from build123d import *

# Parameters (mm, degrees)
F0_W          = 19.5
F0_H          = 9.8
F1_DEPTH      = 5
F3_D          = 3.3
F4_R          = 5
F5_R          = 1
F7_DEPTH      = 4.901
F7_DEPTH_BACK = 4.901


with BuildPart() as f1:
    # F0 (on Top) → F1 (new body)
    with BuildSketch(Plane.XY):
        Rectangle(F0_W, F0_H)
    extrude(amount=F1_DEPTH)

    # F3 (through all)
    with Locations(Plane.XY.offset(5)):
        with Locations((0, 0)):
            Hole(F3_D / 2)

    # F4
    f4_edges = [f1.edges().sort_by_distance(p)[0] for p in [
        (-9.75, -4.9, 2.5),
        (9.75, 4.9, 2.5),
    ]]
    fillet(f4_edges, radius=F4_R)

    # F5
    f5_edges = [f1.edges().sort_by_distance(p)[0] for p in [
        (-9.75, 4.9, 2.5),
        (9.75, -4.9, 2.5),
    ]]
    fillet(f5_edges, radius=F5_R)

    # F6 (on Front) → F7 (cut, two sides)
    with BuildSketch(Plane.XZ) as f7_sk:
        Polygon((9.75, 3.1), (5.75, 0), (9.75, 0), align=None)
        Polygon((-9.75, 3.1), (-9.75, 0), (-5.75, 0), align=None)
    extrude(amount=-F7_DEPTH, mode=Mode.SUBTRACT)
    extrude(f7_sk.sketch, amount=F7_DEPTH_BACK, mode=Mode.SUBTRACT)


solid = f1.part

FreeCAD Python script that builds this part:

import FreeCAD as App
import Part
import Sketcher

V = App.Vector


def edges_at(feature, points):
    """Names of the edges that pass closest to the given points."""
    edges = feature.Shape.Edges
    near = lambda p: min(range(len(edges)), key=lambda i: edges[i].distToShape(Part.Vertex(*p))[0])
    return sorted({f"Edge{near(p) + 1}" for p in points})

doc = App.newDocument("Part")
body = doc.addObject("PartDesign::Body", "Body")

# Sketch on XY plane
sketch1 = doc.addObject("Sketcher::SketchObject", "Sketch")
body.addObject(sketch1)
sketch1.AttachmentSupport = (doc.XY_Plane, [""])
sketch1.MapMode = "FlatFace"
sketch1.addGeometry([
    Part.LineSegment(V(-9.75, 4.9, 0), V(-9.75, -4.9, 0)),
    Part.LineSegment(V(-9.75, -4.9, 0), V(9.75, -4.9, 0)),
    Part.LineSegment(V(9.75, -4.9, 0), V(9.75, 4.9, 0)),
    Part.LineSegment(V(9.75, 4.9, 0), V(-9.75, 4.9, 0)),
], False)
sketch1.addConstraint([
    Sketcher.Constraint("Coincident", 0, 2, 1, 1),
    Sketcher.Constraint("Coincident", 1, 2, 2, 1),
    Sketcher.Constraint("Coincident", 2, 2, 3, 1),
    Sketcher.Constraint("Coincident", 3, 2, 0, 1),
    Sketcher.Constraint("Vertical", 0),
    Sketcher.Constraint("Horizontal", 1),
    Sketcher.Constraint("Vertical", 2),
    Sketcher.Constraint("Horizontal", 3),
    Sketcher.Constraint("Symmetric", 0, 2, 2, 2, -1, 1),
    Sketcher.Constraint("DistanceX", 1, 1, 1, 2, 19.5),
    Sketcher.Constraint("DistanceY", 0, 2, 0, 1, 9.8),
])
pad1 = doc.addObject("PartDesign::Pad", "Pad")
body.addObject(pad1)
pad1.Profile = sketch1
pad1.Length = 5

# Sketch on XY plane
sketch2 = doc.addObject("Sketcher::SketchObject", "Sketch001")
body.addObject(sketch2)
sketch2.AttachmentSupport = (doc.XY_Plane, [""])
sketch2.MapMode = "FlatFace"
sketch2.AttachmentOffset = App.Placement(V(0, 0, 5), App.Rotation())
sketch2.addGeometry(Part.Circle(V(0, 0, 0), V(0, 0, 1), 1.65), False)
sketch2.addConstraint([
    Sketcher.Constraint("Coincident", 0, 3, -1, 1),
    Sketcher.Constraint("Diameter", 0, 3.3),
])
doc.recompute()
hole = doc.addObject("PartDesign::Hole", "Hole")
body.addObject(hole)
hole.Profile = sketch2
hole.ThreadType = "None"
hole.Diameter = 3.3
hole.DepthType = "ThroughAll"
doc.recompute()

fillet = doc.addObject("PartDesign::Fillet", "Fillet")
body.addObject(fillet)
fillet.Base = (hole, edges_at(hole, [(-9.75, -4.9, 2.5), (9.75, 4.9, 2.5)]))
fillet.Radius = 5
doc.recompute()

fillet2 = doc.addObject("PartDesign::Fillet", "Fillet001")
body.addObject(fillet2)
fillet2.Base = (fillet, edges_at(fillet, [(-9.75, 4.9, 2.5), (9.75, -4.9, 2.5)]))
fillet2.Radius = 1

# Sketch on XZ plane
sketch3 = doc.addObject("Sketcher::SketchObject", "Sketch002")
body.addObject(sketch3)
sketch3.AttachmentSupport = (doc.XZ_Plane, [""])
sketch3.MapMode = "FlatFace"
sketch3.addGeometry([
    Part.LineSegment(V(9.75, 3.1, 0), V(5.75, 0, 0)),  # 0
    Part.LineSegment(V(5.75, 0, 0), V(9.75, 0, 0)),  # 1
    Part.LineSegment(V(9.75, 0, 0), V(9.75, 3.1, 0)),  # 2
    Part.LineSegment(V(-9.75, 3.1, 0), V(-9.75, 0, 0)),  # 3
    Part.LineSegment(V(-9.75, 0, 0), V(-5.75, 0, 0)),  # 4
    Part.LineSegment(V(-5.75, 0, 0), V(-9.75, 3.1, 0)),  # 5
], False)
sketch3.addConstraint([
    Sketcher.Constraint("Coincident", 0, 2, 1, 1),
    Sketcher.Constraint("Coincident", 1, 2, 2, 1),
    Sketcher.Constraint("Coincident", 2, 2, 0, 1),
    Sketcher.Constraint("Coincident", 3, 2, 4, 1),
    Sketcher.Constraint("Coincident", 4, 2, 5, 1),
    Sketcher.Constraint("Coincident", 5, 2, 3, 1),
    Sketcher.Constraint("Horizontal", 1),
    Sketcher.Constraint("Vertical", 2),
    Sketcher.Constraint("Vertical", 3),
    Sketcher.Constraint("Horizontal", 4),
    Sketcher.Constraint("Symmetric", 1, 2, 3, 2, -1, 1),
    Sketcher.Constraint("Symmetric", 0, 2, 4, 2, -2),
    Sketcher.Constraint("Horizontal", 2, 2, 5, 2),
    Sketcher.Constraint("DistanceX", 1, 1, 1, 2, 4.0),
    Sketcher.Constraint("DistanceY", 2, 1, 2, 2, 3.1),
    Sketcher.Constraint("DistanceX", 3, 2, 0, 2, 15.5),
])
pocket1 = doc.addObject("PartDesign::Pocket", "Pocket")
body.addObject(pocket1)
pocket1.Profile = sketch3
pocket1.Type = "ThroughAll"
pocket1.Midplane = True

doc.recompute()
